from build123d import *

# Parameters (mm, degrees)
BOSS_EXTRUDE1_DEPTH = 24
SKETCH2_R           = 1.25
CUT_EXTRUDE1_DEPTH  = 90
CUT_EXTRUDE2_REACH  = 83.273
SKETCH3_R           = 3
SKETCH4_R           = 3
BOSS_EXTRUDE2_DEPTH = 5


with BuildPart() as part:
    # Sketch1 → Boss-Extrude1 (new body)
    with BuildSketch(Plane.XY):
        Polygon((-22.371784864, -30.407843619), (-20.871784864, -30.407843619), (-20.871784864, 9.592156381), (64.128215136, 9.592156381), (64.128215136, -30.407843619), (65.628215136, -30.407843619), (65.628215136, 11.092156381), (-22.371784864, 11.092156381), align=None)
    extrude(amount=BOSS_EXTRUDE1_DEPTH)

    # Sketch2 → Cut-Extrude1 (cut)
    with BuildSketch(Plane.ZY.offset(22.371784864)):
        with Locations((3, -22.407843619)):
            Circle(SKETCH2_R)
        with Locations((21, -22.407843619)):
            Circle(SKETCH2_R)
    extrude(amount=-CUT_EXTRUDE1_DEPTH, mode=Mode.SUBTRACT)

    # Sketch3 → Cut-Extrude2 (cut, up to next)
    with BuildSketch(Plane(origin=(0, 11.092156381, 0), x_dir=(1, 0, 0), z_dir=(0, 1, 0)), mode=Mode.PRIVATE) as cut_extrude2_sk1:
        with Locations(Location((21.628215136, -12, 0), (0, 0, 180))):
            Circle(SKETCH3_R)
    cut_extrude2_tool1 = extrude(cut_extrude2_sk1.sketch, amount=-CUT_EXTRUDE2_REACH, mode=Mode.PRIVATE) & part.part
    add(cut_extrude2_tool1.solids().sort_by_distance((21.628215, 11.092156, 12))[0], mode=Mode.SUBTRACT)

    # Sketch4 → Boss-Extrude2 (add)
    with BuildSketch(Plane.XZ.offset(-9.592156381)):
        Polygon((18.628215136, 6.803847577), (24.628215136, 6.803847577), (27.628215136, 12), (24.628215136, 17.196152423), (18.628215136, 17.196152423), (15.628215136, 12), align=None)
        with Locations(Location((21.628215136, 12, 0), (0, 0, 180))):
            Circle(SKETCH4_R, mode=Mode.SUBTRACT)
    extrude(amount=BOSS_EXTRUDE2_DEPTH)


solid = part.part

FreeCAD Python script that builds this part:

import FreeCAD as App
import Part
import Sketcher

V = App.Vector
Q = App.Units.Quantity


def add_polygon(sketch, points):
    """Adds a closed chain of lines whose ends are joined by coincident constraints."""
    first, n = sketch.GeometryCount, len(points)
    for a, b in zip(points, points[1:] + points[:1]):
        sketch.addGeometry(Part.LineSegment(App.Vector(*a, 0), App.Vector(*b, 0)), False)
    for i in range(n):
        sketch.addConstraint(Sketcher.Constraint("Coincident", first + i, 2, first + (i + 1) % n, 1))

doc = App.newDocument("Part")
params = doc.addObject("Spreadsheet::Sheet", "Params")
for row, (alias, value) in enumerate([
    ("sketch1_width", "85 mm"),
    ("sketch1_width2", "88 mm"),
    ("sketch1_height", "40 mm"),
    ("sketch1_height2", "41.5 mm"),
    ("pad1_length", "24 mm"),
    ("sketch2_diameter", "2.5 mm"),
    ("pocket1_length", "90 mm"),
    ("sketch3_diameter", "6 mm"),
    ("sketch4_diameter", "6 mm"),
    ("sketch4_width", "6 mm"),
    ("sketch4_length", "6 mm"),
    ("pad2_length", "5 mm"),
], start=1):
    params.set(f"A{row}", alias)
    params.set(f"B{row}", "=" + value)
    params.setAlias(f"B{row}", alias)

body = doc.addObject("PartDesign::Body", "Body")

# Sketch on XY plane
sketch1 = doc.addObject("Sketcher::SketchObject", "Sketch")
body.addObject(sketch1)
sketch1.AttachmentSupport = (doc.XY_Plane, [""])
sketch1.MapMode = "FlatFace"
add_polygon(sketch1, [(-22.4, -30.4), (-20.9, -30.4), (-20.9, 9.6), (64.1, 9.6), (64.1, -30.4), (65.6, -30.4), (65.6, 11.1), (-22.4, 11.1)])  # lines 0-7
sketch1.addConstraint([
    Sketcher.Constraint("Horizontal", 0),
    Sketcher.Constraint("Vertical", 1),
    Sketcher.Constraint("Horizontal", 2),
    Sketcher.Constraint("Vertical", 3),
    Sketcher.Constraint("Horizontal", 4),
    Sketcher.Constraint("Vertical", 5),
    Sketcher.Constraint("Horizontal", 6),
    Sketcher.Constraint("Vertical", 7),
    Sketcher.Constraint("Horizontal", 0, 2, 3, 2),
    Sketcher.Constraint("Equal", 0, 4),
    Sketcher.Constraint("DistanceX", 2, 1, 2, 2, Q("85 mm")),
    Sketcher.Constraint("DistanceX", 6, 2, 6, 1, Q("88 mm")),
    Sketcher.Constraint("DistanceY", 1, 1, 1, 2, Q("40 mm")),
    Sketcher.Constraint("DistanceY", 5, 1, 5, 2, Q("41.5 mm")),
    Sketcher.Constraint("DistanceX", 0, 2, -1, 1, Q("20.871785 mm")),
    Sketcher.Constraint("DistanceY", 0, 2, -1, 1, Q("30.407844 mm")),
])
sketch1.setExpression("Constraints[18]", "Params.sketch1_width")
sketch1.setExpression("Constraints[19]", "Params.sketch1_width2")
sketch1.setExpression("Constraints[20]", "Params.sketch1_height")
sketch1.setExpression("Constraints[21]", "Params.sketch1_height2")
pad1 = doc.addObject("PartDesign::Pad", "Pad")
body.addObject(pad1)
pad1.Profile = sketch1
pad1.setExpression("Length", "Params.pad1_length")

# Sketch on YZ plane
sketch2 = doc.addObject("Sketcher::SketchObject", "Sketch001")
body.addObject(sketch2)
sketch2.AttachmentSupport = (doc.YZ_Plane, [""])
sketch2.MapMode = "FlatFace"
sketch2.AttachmentOffset = App.Placement(V(0, 0, -22.371785), App.Rotation())
sketch2.addGeometry([
    Part.Circle(V(-22.4, 3, 0), V(0, 0, 1), 1.2),
    Part.Circle(V(-22.4, 21, 0), V(0, 0, 1), 1.2),
], False)
sketch2.addConstraint([
    Sketcher.Constraint("Equal", 0, 1),
    Sketcher.Constraint("Vertical", 0, 3, 1, 3),
    Sketcher.Constraint("Diameter", 0, Q("2.5 mm")),
    Sketcher.Constraint("DistanceY", -1, 1, 0, 3, Q("3 mm")),
    Sketcher.Constraint("DistanceY", -1, 1, 1, 3, Q("21 mm")),
    Sketcher.Constraint("DistanceX", 0, 3, -1, 1, Q("22.407844 mm")),
])
sketch2.setExpression("Constraints[2]", "Params.sketch2_diameter")
pocket1 = doc.addObject("PartDesign::Pocket", "Pocket")
body.addObject(pocket1)
pocket1.Profile = sketch2
pocket1.setExpression("Length", "Params.pocket1_length")
pocket1.Reversed = True

# Sketch on XZ plane
sketch3 = doc.addObject("Sketcher::SketchObject", "Sketch002")
body.addObject(sketch3)
sketch3.AttachmentSupport = (doc.XZ_Plane, [""])
sketch3.MapMode = "FlatFace"
sketch3.AttachmentOffset = App.Placement(V(0, 0, -11.092156), App.Rotation())
sketch3.addGeometry(Part.Circle(V(21.6, 12, 0), V(0, 0, 1), 3), False)
sketch3.addConstraint([
    Sketcher.Constraint("Diameter", 0, Q("6 mm")),
    Sketcher.Constraint("DistanceY", -1, 1, 0, 3, Q("12 mm")),
    Sketcher.Constraint("DistanceX", -1, 1, 0, 3, Q("21.628215 mm")),
])
sketch3.setExpression("Constraints[0]", "Params.sketch3_diameter")
pocket2 = doc.addObject("PartDesign::Pocket", "Pocket001")
body.addObject(pocket2)
pocket2.Profile = sketch3
pocket2.Type = "UpToFirst"
pocket2.Reversed = True

# Sketch on XZ plane
sketch4 = doc.addObject("Sketcher::SketchObject", "Sketch003")
body.addObject(sketch4)
sketch4.AttachmentSupport = (doc.XZ_Plane, [""])
sketch4.MapMode = "FlatFace"
sketch4.AttachmentOffset = App.Placement(V(0, 0, -9.592156), App.Rotation())
add_polygon(sketch4, [(18.6, 6.8), (24.6, 6.8), (27.6, 12), (24.6, 17.2), (18.6, 17.2), (15.6, 12)])  # lines 0-5
sketch4.addGeometry(Part.Circle(V(21.6, 12, 0), V(0, 0, 1), 3), False)  # 6
sketch4.addConstraint([
    Sketcher.Constraint("Horizontal", 0),
    Sketcher.Constraint("Horizontal", 3),
    Sketcher.Constraint("Parallel", 1, 4),
    Sketcher.Constraint("Parallel", 2, 5),
    Sketcher.Constraint("Horizontal", 6, 3, 1, 2),
    Sketcher.Constraint("Horizontal", 1, 2, 4, 2),
    Sketcher.Constraint("Vertical", 0, 2, 2, 2),
    Sketcher.Constraint("Vertical", 3, 2, 5, 2),
    Sketcher.Constraint("Diameter", 6, Q("6 mm")),
    Sketcher.Constraint("DistanceX", 0, 1, 0, 2, Q("6 mm")),
    Sketcher.Constraint("Angle", 1, Q("60 deg")),
    Sketcher.Constraint("Distance", 1, Q("6 mm")),
    Sketcher.Constraint("DistanceY", -1, 1, 6, 3, Q("12 mm")),
    Sketcher.Constraint("DistanceX", 6, 3, 0, 2, Q("3 mm")),
    Sketcher.Constraint("DistanceX", -1, 1, 6, 3, Q("21.628215 mm")),
])
sketch4.setExpression("Constraints[14]", "Params.sketch4_diameter")
sketch4.setExpression("Constraints[15]", "Params.sketch4_width")
sketch4.setExpression("Constraints[17]", "Params.sketch4_length")
pad2 = doc.addObject("PartDesign::Pad", "Pad001")
body.addObject(pad2)
pad2.Profile = sketch4
pad2.setExpression("Length", "Params.pad2_length")

doc.recompute()
